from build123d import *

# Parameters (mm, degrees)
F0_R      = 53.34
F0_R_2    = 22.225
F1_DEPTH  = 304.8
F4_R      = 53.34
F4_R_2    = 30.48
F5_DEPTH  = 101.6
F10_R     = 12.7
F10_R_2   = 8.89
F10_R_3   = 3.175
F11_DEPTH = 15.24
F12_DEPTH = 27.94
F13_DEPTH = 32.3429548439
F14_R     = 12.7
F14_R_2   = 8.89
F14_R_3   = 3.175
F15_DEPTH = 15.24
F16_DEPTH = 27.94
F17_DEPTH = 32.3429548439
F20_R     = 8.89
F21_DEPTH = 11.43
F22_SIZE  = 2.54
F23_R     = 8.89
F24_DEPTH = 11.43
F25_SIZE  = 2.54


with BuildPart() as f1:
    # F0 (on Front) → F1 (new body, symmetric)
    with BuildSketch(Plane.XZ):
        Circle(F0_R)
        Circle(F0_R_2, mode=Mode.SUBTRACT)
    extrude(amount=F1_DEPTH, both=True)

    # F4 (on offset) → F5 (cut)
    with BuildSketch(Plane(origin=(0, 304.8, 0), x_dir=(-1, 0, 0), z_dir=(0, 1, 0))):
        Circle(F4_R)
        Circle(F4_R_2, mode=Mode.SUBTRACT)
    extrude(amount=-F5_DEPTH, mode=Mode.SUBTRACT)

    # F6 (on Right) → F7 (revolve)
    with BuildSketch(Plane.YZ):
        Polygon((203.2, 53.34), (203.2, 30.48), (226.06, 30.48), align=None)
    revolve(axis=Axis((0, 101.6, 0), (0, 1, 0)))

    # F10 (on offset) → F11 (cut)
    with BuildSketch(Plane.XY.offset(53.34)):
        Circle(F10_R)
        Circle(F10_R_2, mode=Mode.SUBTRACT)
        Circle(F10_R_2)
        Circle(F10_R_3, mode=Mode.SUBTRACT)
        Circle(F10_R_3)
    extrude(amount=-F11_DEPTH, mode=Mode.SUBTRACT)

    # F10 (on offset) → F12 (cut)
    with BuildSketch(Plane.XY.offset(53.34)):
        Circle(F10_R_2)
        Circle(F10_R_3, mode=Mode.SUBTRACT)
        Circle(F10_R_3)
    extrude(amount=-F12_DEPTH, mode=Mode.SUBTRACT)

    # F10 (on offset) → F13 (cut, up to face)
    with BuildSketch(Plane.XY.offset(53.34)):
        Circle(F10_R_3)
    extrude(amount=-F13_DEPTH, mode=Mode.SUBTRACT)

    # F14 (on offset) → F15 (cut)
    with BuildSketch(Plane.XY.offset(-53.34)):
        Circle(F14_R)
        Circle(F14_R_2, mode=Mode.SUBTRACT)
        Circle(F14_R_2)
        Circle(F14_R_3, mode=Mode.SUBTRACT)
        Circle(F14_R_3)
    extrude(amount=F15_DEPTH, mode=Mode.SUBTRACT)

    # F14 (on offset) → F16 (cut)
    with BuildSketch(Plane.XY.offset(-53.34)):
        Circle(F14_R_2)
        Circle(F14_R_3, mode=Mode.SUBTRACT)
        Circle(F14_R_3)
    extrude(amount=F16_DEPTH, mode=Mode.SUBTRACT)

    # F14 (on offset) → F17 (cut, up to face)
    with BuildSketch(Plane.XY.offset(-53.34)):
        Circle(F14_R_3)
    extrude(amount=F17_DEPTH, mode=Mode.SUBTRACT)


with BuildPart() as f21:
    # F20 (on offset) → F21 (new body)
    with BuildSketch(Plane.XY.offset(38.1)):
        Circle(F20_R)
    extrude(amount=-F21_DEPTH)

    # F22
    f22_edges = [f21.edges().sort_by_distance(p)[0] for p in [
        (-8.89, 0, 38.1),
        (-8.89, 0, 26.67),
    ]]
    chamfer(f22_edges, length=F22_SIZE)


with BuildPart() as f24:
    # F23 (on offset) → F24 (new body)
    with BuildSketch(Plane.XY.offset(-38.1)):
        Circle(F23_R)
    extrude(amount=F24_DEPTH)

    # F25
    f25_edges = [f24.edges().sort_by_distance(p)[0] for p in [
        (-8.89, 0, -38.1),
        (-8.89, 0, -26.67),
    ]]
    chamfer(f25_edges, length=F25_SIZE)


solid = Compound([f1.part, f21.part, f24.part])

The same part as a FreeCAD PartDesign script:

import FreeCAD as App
import Part
import Sketcher
from FreeCAD import Vector
Q = App.Units.Quantity


def edges_at(feature, points):
    """Names of the edges that pass closest to the given points."""
    edges = feature.Shape.Edges
    near = lambda p: min(range(len(edges)), key=lambda i: edges[i].distToShape(Part.Vertex(*p))[0])
    return sorted({f"Edge{near(p) + 1}" for p in points})

doc = App.newDocument("Part")
body = doc.addObject("PartDesign::Body", "Body")

sketch1 = body.newObject("Sketcher::SketchObject", "Sketch")
sketch1.AttachmentSupport = (doc.getObject("XZ_Plane"), [""])
sketch1.MapMode = "FlatFace"
sketch1.addGeometry(Part.Circle(Vector(0, 0, 0), Vector(0, 0, 1), 53.34), False)
sketch1.addGeometry(Part.Circle(Vector(0, 0, 0), Vector(0, 0, 1), 22.225), False)
sketch1.addConstraint(Sketcher.Constraint("Coincident", 0, 3, -1, 1))
sketch1.addConstraint(Sketcher.Constraint("Coincident", 1, 3, -1, 1))
sketch1.addConstraint(Sketcher.Constraint("Diameter", 0, Q("4.2 in")))
sketch1.addConstraint(Sketcher.Constraint("Diameter", 1, Q("1.75 in")))
pad1 = body.newObject("PartDesign::Pad", "Pad")
pad1.Profile = sketch1
pad1.Length = Q("24 in")
pad1.Midplane = True

sketch2 = body.newObject("Sketcher::SketchObject", "Sketch001")
sketch2.AttachmentSupport = (doc.getObject("XZ_Plane"), [""])
sketch2.MapMode = "FlatFace"
sketch2.AttachmentOffset = App.Placement(Vector(0, 0, -12 * 25.4), App.Rotation())
sketch2.addGeometry(Part.Circle(Vector(0, 0, 0), Vector(0, 0, 1), 53.34), False)
sketch2.addGeometry(Part.Circle(Vector(0, 0, 0), Vector(0, 0, 1), 30.48), False)
sketch2.addConstraint(Sketcher.Constraint("Coincident", 0, 3, -1, 1))
sketch2.addConstraint(Sketcher.Constraint("Coincident", 1, 3, -1, 1))
sketch2.addConstraint(Sketcher.Constraint("Diameter", 0, Q("4.2 in")))
sketch2.addConstraint(Sketcher.Constraint("Diameter", 1, Q("2.4 in")))
pocket1 = body.newObject("PartDesign::Pocket", "Pocket")
pocket1.Profile = sketch2
pocket1.Length = Q("4 in")
pocket1.Reversed = True

sketch3 = body.newObject("Sketcher::SketchObject", "Sketch002")
sketch3.AttachmentSupport = (doc.getObject("YZ_Plane"), [""])
sketch3.MapMode = "FlatFace"
sketch3.addGeometry(Part.LineSegment(Vector(203.2, 53.34, 0), Vector(203.2, 30.48, 0)), False)
sketch3.addGeometry(Part.LineSegment(Vector(203.2, 30.48, 0), Vector(226.06, 30.48, 0)), False)
sketch3.addGeometry(Part.LineSegment(Vector(226.06, 30.48, 0), Vector(203.2, 53.34, 0)), False)
sketch3.addConstraint(Sketcher.Constraint("Coincident", 0, 2, 1, 1))
sketch3.addConstraint(Sketcher.Constraint("Coincident", 1, 2, 2, 1))
sketch3.addConstraint(Sketcher.Constraint("Coincident", 2, 2, 0, 1))
sketch3.addConstraint(Sketcher.Constraint("Vertical", 0))
sketch3.addConstraint(Sketcher.Constraint("Horizontal", 1))
sketch3.addConstraint(Sketcher.Constraint("Equal", 1, 0))
sketch3.addConstraint(Sketcher.Constraint("DistanceX", 1, 1, 1, 2, Q("0.9 in")))
sketch3.addConstraint(Sketcher.Constraint("DistanceX", -1, 1, 0, 2, Q("8 in")))
sketch3.addConstraint(Sketcher.Constraint("DistanceY", -1, 1, 0, 2, Q("1.2 in")))
revolution = body.newObject("PartDesign::Revolution", "Revolution")
revolution.Profile = sketch3
revolution.ReferenceAxis = (sketch3, ["H_Axis"])
revolution.Angle = 360

sketch4 = body.newObject("Sketcher::SketchObject", "Sketch003")
sketch4.AttachmentSupport = (doc.getObject("XY_Plane"), [""])
sketch4.MapMode = "FlatFace"
sketch4.AttachmentOffset = App.Placement(Vector(0, 0, 2.1 * 25.4), App.Rotation())
sketch4.addGeometry(Part.Circle(Vector(0, 0, 0), Vector(0, 0, 1), 12.7), False)
sketch4.addConstraint(Sketcher.Constraint("Coincident", 0, 3, -1, 1))
sketch4.addConstraint(Sketcher.Constraint("Diameter", 0, Q("1 in")))
pocket2 = body.newObject("PartDesign::Pocket", "Pocket001")
pocket2.Profile = sketch4
pocket2.Length = Q("0.6 in")

sketch5 = body.newObject("Sketcher::SketchObject", "Sketch004")
sketch5.AttachmentSupport = (doc.getObject("XY_Plane"), [""])
sketch5.MapMode = "FlatFace"
sketch5.AttachmentOffset = App.Placement(Vector(0, 0, 2.1 * 25.4), App.Rotation())
sketch5.addGeometry(Part.Circle(Vector(0, 0, 0), Vector(0, 0, 1), 8.89), False)
sketch5.addConstraint(Sketcher.Constraint("Coincident", 0, 3, -1, 1))
sketch5.addConstraint(Sketcher.Constraint("Diameter", 0, Q("0.7 in")))
pocket3 = body.newObject("PartDesign::Pocket", "Pocket002")
pocket3.Profile = sketch5
pocket3.Length = Q("1.1 in")

sketch6 = body.newObject("Sketcher::SketchObject", "Sketch005")
sketch6.AttachmentSupport = (doc.getObject("XY_Plane"), [""])
sketch6.MapMode = "FlatFace"
sketch6.AttachmentOffset = App.Placement(Vector(0, 0, 2.1 * 25.4), App.Rotation())
sketch6.addGeometry(Part.Circle(Vector(0, 0, 0), Vector(0, 0, 1), 3.175), False)
sketch6.addConstraint(Sketcher.Constraint("Coincident", 0, 3, -1, 1))
sketch6.addConstraint(Sketcher.Constraint("Diameter", 0, Q("0.25 in")))
pocket4 = body.newObject("PartDesign::Pocket", "Pocket003")
pocket4.Profile = sketch6
pocket4.Length = 32.342955

sketch7 = body.newObject("Sketcher::SketchObject", "Sketch006")
sketch7.AttachmentSupport = (doc.getObject("XY_Plane"), [""])
sketch7.MapMode = "FlatFace"
sketch7.AttachmentOffset = App.Placement(Vector(0, 0, -2.1 * 25.4), App.Rotation())
sketch7.addGeometry(Part.Circle(Vector(0, 0, 0), Vector(0, 0, 1), 12.7), False)
sketch7.addConstraint(Sketcher.Constraint("Coincident", 0, 3, -1, 1))
sketch7.addConstraint(Sketcher.Constraint("Diameter", 0, Q("1 in")))
pocket5 = body.newObject("PartDesign::Pocket", "Pocket004")
pocket5.Profile = sketch7
pocket5.Length = Q("0.6 in")
pocket5.Reversed = True

sketch8 = body.newObject("Sketcher::SketchObject", "Sketch007")
sketch8.AttachmentSupport = (doc.getObject("XY_Plane"), [""])
sketch8.MapMode = "FlatFace"
sketch8.AttachmentOffset = App.Placement(Vector(0, 0, -2.1 * 25.4), App.Rotation())
sketch8.addGeometry(Part.Circle(Vector(0, 0, 0), Vector(0, 0, 1), 8.89), False)
sketch8.addConstraint(Sketcher.Constraint("Coincident", 0, 3, -1, 1))
sketch8.addConstraint(Sketcher.Constraint("Diameter", 0, Q("0.7 in")))
pocket6 = body.newObject("PartDesign::Pocket", "Pocket005")
pocket6.Profile = sketch8
pocket6.Length = Q("1.1 in")
pocket6.Reversed = True

sketch9 = body.newObject("Sketcher::SketchObject", "Sketch008")
sketch9.AttachmentSupport = (doc.getObject("XY_Plane"), [""])
sketch9.MapMode = "FlatFace"
sketch9.AttachmentOffset = App.Placement(Vector(0, 0, -2.1 * 25.4), App.Rotation())
sketch9.addGeometry(Part.Circle(Vector(0, 0, 0), Vector(0, 0, 1), 3.175), False)
sketch9.addConstraint(Sketcher.Constraint("Coincident", 0, 3, -1, 1))
sketch9.addConstraint(Sketcher.Constraint("Diameter", 0, Q("0.25 in")))
pocket7 = body.newObject("PartDesign::Pocket", "Pocket006")
pocket7.Profile = sketch9
pocket7.Length = 32.342955
pocket7.Reversed = True
body2 = doc.addObject("PartDesign::Body", "Body001")

sketch10 = body2.newObject("Sketcher::SketchObject", "Sketch009")
sketch10.AttachmentSupport = (doc.getObject("XY_Plane001"), [""])
sketch10.MapMode = "FlatFace"
sketch10.AttachmentOffset = App.Placement(Vector(0, 0, 1.5 * 25.4), App.Rotation())
sketch10.addGeometry(Part.Circle(Vector(0, 0, 0), Vector(0, 0, 1), 8.89), False)
sketch10.addConstraint(Sketcher.Constraint("Coincident", 0, 3, -1, 1))
sketch10.addConstraint(Sketcher.Constraint("Diameter", 0, Q("0.7 in")))
pad2 = body2.newObject("PartDesign::Pad", "Pad001")
pad2.Profile = sketch10
pad2.Length = Q("0.45 in")
pad2.Reversed = True
doc.recompute()

chamfer = body2.newObject("PartDesign::Chamfer", "Chamfer")
chamfer.Base = (pad2, edges_at(pad2, [(-8.89, 0, 38.1), (-8.89, 0, 26.67)]))
chamfer.Size = Q("0.1 in")
body3 = doc.addObject("PartDesign::Body", "Body002")

sketch11 = body3.newObject("Sketcher::SketchObject", "Sketch010")
sketch11.AttachmentSupport = (doc.getObject("XY_Plane002"), [""])
sketch11.MapMode = "FlatFace"
sketch11.AttachmentOffset = App.Placement(Vector(0, 0, -1.5 * 25.4), App.Rotation())
sketch11.addGeometry(Part.Circle(Vector(0, 0, 0), Vector(0, 0, 1), 8.89), False)
sketch11.addConstraint(Sketcher.Constraint("Coincident", 0, 3, -1, 1))
sketch11.addConstraint(Sketcher.Constraint("Diameter", 0, Q("0.7 in")))
pad3 = body3.newObject("PartDesign::Pad", "Pad002")
pad3.Profile = sketch11
pad3.Length = Q("0.45 in")
doc.recompute()

chamfer2 = body3.newObject("PartDesign::Chamfer", "Chamfer001")
chamfer2.Base = (pad3, edges_at(pad3, [(-8.89, 0, -38.1), (-8.89, 0, -26.67)]))
chamfer2.Size = Q("0.1 in")

doc.recompute()
